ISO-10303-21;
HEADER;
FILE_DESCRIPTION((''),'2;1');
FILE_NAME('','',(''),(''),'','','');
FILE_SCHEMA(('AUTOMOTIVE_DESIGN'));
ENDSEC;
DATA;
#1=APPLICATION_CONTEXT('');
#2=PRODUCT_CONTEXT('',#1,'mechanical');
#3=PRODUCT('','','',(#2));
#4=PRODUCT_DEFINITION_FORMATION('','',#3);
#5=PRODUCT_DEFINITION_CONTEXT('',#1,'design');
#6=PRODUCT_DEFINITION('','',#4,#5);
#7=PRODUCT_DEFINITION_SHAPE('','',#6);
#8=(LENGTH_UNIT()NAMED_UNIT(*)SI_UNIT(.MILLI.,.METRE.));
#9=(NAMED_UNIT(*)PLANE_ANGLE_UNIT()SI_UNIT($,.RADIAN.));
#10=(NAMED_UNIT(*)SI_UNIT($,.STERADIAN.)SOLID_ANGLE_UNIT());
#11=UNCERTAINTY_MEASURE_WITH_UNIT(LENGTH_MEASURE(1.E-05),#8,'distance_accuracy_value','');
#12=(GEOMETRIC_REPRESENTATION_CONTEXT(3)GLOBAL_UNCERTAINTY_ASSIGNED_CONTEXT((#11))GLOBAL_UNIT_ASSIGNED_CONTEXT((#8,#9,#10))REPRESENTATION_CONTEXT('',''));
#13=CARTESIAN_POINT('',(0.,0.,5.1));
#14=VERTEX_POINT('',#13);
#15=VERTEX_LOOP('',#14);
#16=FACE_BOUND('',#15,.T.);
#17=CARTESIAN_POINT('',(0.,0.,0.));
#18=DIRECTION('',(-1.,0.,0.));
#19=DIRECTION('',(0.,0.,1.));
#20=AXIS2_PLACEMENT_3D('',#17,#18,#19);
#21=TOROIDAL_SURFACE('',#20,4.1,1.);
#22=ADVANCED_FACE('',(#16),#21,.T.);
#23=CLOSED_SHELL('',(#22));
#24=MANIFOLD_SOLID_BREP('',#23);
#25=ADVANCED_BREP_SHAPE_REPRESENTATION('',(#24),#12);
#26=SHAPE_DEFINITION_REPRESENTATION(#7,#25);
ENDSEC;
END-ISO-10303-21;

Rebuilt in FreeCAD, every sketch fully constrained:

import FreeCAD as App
import Part
import Sketcher
from FreeCAD import Vector
Q = App.Units.Quantity

doc = App.newDocument("Part")
body = doc.addObject("PartDesign::Body", "Body")

# Sketch on XY plane
sketch1 = body.newObject("Sketcher::SketchObject", "Sketch")
sketch1.AttachmentSupport = (doc.getObject("XY_Plane"), [""])
sketch1.MapMode = "FlatFace"
sketch1.addGeometry(Part.Circle(Vector(0, 4.1, 0), Vector(0, 0, 1), 1), False)
sketch1.addConstraint([
    Sketcher.Constraint("PointOnObject", 0, 3, -2),
    Sketcher.Constraint("Diameter", 0, Q("2 mm")),
    Sketcher.Constraint("DistanceY", -1, 1, 0, 3, Q("4.1 mm")),
])
revolution = body.newObject("PartDesign::Revolution", "Revolution")
revolution.Profile = sketch1
revolution.ReferenceAxis = (sketch1, ["H_Axis"])
revolution.Angle = 360

doc.recompute()
